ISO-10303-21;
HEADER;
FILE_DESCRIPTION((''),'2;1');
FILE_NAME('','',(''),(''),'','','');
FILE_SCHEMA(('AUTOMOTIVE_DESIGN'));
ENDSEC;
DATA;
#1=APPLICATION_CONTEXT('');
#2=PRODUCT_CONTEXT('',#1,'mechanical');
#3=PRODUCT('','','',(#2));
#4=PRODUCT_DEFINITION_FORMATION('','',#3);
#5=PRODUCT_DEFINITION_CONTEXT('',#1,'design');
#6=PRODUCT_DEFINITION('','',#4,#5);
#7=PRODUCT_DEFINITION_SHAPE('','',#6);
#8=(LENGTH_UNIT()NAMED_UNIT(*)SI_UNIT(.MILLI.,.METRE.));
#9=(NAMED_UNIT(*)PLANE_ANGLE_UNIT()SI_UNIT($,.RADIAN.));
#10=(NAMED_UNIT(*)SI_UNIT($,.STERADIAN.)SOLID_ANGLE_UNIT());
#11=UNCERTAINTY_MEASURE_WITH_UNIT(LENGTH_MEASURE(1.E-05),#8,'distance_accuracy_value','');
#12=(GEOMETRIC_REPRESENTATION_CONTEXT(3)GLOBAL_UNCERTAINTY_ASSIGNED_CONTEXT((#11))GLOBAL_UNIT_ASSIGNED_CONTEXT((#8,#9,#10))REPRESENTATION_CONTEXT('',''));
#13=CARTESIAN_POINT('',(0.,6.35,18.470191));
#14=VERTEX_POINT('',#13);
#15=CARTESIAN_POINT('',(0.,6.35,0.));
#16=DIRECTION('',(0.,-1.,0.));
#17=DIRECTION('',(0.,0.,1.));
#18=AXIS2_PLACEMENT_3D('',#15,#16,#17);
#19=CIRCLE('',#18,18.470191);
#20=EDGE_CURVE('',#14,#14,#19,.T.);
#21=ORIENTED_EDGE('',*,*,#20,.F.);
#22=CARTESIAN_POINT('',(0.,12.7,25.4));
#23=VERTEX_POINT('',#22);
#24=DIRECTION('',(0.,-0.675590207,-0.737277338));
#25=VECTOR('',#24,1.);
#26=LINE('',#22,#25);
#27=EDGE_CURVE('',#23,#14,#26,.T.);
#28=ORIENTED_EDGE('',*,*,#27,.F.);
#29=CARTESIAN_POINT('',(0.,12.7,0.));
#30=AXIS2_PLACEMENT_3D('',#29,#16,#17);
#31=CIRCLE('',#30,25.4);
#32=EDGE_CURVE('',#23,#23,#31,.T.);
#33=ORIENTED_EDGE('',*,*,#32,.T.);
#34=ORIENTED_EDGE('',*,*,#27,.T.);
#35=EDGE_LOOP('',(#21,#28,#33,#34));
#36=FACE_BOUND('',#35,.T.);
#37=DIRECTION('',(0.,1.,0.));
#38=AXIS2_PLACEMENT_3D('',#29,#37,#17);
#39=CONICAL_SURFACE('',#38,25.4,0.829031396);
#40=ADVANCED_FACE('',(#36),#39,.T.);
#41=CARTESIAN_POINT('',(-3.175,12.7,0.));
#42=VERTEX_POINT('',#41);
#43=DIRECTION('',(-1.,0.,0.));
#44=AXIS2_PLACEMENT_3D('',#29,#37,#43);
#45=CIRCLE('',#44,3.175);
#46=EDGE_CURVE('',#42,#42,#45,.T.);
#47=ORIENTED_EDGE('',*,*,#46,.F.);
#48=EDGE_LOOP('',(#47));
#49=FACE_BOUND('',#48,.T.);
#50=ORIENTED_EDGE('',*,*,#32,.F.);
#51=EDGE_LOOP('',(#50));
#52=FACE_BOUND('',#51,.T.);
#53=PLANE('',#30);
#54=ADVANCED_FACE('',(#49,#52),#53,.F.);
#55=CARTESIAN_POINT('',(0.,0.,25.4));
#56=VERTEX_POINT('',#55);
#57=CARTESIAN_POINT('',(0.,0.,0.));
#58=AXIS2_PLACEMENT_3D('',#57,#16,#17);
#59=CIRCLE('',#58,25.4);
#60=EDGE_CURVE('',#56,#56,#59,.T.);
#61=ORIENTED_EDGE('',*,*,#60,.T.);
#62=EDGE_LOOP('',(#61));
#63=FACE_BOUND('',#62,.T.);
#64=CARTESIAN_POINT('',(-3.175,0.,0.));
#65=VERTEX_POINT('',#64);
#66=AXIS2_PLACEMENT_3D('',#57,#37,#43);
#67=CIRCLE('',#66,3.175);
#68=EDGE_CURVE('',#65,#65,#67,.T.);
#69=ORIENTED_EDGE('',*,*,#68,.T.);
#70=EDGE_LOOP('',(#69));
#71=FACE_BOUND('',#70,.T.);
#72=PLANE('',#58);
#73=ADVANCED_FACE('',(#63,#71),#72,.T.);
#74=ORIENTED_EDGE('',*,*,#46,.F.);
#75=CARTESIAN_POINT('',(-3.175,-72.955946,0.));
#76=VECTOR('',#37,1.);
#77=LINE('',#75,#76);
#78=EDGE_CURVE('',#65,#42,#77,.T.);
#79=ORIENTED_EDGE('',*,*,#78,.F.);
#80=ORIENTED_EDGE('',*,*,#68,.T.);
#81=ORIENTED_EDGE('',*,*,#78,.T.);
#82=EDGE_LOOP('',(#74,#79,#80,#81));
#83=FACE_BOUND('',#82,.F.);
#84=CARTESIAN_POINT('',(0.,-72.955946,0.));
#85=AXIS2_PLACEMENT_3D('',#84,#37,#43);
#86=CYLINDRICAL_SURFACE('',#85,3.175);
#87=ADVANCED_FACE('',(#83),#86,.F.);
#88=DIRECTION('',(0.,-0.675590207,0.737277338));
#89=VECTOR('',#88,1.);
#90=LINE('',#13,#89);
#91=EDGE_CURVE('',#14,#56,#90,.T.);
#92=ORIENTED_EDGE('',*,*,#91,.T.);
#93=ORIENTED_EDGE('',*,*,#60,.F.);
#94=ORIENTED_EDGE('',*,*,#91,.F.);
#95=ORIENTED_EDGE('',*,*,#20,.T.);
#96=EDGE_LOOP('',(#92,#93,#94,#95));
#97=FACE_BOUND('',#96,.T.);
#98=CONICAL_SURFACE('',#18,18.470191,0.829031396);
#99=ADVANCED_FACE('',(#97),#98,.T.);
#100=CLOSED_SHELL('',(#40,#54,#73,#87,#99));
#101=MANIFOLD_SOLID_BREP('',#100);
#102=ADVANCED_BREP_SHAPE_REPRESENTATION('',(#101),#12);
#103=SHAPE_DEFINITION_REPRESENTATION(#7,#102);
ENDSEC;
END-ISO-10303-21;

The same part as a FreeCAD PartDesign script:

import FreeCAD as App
import Part
import Sketcher
from FreeCAD import Vector
Q = App.Units.Quantity

doc = App.newDocument("Part")
body = doc.addObject("PartDesign::Body", "Body")

sketch1 = body.newObject("Sketcher::SketchObject", "Sketch")
sketch1.AttachmentSupport = (doc.getObject("YZ_Plane"), [""])
sketch1.MapMode = "FlatFace"
sketch1.addGeometry([
    Part.LineSegment(Vector(0, 25.4, 0), Vector(0, 0, 0)),
    Part.LineSegment(Vector(0, 0, 0), Vector(12.7, 0, 0)),
    Part.LineSegment(Vector(12.7, 0, 0), Vector(12.7, 25.4, 0)),
    Part.LineSegment(Vector(12.7, 25.4, 0), Vector(6.35, 18.470191, 0)),
    Part.LineSegment(Vector(6.35, 18.470191, 0), Vector(0, 25.4, 0)),
], False)
sketch1.addConstraint([
    Sketcher.Constraint("Coincident", 0, 2, 1, 1),
    Sketcher.Constraint("Coincident", 1, 2, 2, 1),
    Sketcher.Constraint("Coincident", 2, 2, 3, 1),
    Sketcher.Constraint("Coincident", 3, 2, 4, 1),
    Sketcher.Constraint("Coincident", 4, 2, 0, 1),
    Sketcher.Constraint("Vertical", 0),
    Sketcher.Constraint("Horizontal", 1),
    Sketcher.Constraint("Vertical", 2),
    Sketcher.Constraint("Coincident", 0, 2, -1, 1),
    Sketcher.Constraint("Horizontal", 2, 2, 4, 2),
    Sketcher.Constraint("Equal", 3, 4),
    Sketcher.Constraint("DistanceY", 0, 2, 0, 1, Q("1 in")),
    Sketcher.Constraint("DistanceX", 1, 1, 1, 2, Q("0.5 in")),
    Sketcher.Constraint("Angle", 3, Q("-132.5 deg")),
])
revolution = body.newObject("PartDesign::Revolution", "Revolution")
revolution.Profile = sketch1
revolution.ReferenceAxis = (sketch1, ["H_Axis"])
revolution.Angle = 360

sketch2 = body.newObject("Sketcher::SketchObject", "Sketch001")
sketch2.AttachmentSupport = (doc.getObject("XZ_Plane"), [""])
sketch2.MapMode = "FlatFace"
sketch2.addGeometry(Part.Circle(Vector(0, 0, 0), Vector(0, 0, 1), 3.175), False)
sketch2.addConstraint([
    Sketcher.Constraint("Coincident", 0, 3, -1, 1),
    Sketcher.Constraint("Diameter", 0, Q("0.25 in")),
])
doc.recompute()
hole = body.newObject("PartDesign::Hole", "Hole")
hole.Profile = sketch2
hole.ThreadType = "None"
hole.Diameter = Q("0.25 in")
hole.DepthType = "ThroughAll"

doc.recompute()
